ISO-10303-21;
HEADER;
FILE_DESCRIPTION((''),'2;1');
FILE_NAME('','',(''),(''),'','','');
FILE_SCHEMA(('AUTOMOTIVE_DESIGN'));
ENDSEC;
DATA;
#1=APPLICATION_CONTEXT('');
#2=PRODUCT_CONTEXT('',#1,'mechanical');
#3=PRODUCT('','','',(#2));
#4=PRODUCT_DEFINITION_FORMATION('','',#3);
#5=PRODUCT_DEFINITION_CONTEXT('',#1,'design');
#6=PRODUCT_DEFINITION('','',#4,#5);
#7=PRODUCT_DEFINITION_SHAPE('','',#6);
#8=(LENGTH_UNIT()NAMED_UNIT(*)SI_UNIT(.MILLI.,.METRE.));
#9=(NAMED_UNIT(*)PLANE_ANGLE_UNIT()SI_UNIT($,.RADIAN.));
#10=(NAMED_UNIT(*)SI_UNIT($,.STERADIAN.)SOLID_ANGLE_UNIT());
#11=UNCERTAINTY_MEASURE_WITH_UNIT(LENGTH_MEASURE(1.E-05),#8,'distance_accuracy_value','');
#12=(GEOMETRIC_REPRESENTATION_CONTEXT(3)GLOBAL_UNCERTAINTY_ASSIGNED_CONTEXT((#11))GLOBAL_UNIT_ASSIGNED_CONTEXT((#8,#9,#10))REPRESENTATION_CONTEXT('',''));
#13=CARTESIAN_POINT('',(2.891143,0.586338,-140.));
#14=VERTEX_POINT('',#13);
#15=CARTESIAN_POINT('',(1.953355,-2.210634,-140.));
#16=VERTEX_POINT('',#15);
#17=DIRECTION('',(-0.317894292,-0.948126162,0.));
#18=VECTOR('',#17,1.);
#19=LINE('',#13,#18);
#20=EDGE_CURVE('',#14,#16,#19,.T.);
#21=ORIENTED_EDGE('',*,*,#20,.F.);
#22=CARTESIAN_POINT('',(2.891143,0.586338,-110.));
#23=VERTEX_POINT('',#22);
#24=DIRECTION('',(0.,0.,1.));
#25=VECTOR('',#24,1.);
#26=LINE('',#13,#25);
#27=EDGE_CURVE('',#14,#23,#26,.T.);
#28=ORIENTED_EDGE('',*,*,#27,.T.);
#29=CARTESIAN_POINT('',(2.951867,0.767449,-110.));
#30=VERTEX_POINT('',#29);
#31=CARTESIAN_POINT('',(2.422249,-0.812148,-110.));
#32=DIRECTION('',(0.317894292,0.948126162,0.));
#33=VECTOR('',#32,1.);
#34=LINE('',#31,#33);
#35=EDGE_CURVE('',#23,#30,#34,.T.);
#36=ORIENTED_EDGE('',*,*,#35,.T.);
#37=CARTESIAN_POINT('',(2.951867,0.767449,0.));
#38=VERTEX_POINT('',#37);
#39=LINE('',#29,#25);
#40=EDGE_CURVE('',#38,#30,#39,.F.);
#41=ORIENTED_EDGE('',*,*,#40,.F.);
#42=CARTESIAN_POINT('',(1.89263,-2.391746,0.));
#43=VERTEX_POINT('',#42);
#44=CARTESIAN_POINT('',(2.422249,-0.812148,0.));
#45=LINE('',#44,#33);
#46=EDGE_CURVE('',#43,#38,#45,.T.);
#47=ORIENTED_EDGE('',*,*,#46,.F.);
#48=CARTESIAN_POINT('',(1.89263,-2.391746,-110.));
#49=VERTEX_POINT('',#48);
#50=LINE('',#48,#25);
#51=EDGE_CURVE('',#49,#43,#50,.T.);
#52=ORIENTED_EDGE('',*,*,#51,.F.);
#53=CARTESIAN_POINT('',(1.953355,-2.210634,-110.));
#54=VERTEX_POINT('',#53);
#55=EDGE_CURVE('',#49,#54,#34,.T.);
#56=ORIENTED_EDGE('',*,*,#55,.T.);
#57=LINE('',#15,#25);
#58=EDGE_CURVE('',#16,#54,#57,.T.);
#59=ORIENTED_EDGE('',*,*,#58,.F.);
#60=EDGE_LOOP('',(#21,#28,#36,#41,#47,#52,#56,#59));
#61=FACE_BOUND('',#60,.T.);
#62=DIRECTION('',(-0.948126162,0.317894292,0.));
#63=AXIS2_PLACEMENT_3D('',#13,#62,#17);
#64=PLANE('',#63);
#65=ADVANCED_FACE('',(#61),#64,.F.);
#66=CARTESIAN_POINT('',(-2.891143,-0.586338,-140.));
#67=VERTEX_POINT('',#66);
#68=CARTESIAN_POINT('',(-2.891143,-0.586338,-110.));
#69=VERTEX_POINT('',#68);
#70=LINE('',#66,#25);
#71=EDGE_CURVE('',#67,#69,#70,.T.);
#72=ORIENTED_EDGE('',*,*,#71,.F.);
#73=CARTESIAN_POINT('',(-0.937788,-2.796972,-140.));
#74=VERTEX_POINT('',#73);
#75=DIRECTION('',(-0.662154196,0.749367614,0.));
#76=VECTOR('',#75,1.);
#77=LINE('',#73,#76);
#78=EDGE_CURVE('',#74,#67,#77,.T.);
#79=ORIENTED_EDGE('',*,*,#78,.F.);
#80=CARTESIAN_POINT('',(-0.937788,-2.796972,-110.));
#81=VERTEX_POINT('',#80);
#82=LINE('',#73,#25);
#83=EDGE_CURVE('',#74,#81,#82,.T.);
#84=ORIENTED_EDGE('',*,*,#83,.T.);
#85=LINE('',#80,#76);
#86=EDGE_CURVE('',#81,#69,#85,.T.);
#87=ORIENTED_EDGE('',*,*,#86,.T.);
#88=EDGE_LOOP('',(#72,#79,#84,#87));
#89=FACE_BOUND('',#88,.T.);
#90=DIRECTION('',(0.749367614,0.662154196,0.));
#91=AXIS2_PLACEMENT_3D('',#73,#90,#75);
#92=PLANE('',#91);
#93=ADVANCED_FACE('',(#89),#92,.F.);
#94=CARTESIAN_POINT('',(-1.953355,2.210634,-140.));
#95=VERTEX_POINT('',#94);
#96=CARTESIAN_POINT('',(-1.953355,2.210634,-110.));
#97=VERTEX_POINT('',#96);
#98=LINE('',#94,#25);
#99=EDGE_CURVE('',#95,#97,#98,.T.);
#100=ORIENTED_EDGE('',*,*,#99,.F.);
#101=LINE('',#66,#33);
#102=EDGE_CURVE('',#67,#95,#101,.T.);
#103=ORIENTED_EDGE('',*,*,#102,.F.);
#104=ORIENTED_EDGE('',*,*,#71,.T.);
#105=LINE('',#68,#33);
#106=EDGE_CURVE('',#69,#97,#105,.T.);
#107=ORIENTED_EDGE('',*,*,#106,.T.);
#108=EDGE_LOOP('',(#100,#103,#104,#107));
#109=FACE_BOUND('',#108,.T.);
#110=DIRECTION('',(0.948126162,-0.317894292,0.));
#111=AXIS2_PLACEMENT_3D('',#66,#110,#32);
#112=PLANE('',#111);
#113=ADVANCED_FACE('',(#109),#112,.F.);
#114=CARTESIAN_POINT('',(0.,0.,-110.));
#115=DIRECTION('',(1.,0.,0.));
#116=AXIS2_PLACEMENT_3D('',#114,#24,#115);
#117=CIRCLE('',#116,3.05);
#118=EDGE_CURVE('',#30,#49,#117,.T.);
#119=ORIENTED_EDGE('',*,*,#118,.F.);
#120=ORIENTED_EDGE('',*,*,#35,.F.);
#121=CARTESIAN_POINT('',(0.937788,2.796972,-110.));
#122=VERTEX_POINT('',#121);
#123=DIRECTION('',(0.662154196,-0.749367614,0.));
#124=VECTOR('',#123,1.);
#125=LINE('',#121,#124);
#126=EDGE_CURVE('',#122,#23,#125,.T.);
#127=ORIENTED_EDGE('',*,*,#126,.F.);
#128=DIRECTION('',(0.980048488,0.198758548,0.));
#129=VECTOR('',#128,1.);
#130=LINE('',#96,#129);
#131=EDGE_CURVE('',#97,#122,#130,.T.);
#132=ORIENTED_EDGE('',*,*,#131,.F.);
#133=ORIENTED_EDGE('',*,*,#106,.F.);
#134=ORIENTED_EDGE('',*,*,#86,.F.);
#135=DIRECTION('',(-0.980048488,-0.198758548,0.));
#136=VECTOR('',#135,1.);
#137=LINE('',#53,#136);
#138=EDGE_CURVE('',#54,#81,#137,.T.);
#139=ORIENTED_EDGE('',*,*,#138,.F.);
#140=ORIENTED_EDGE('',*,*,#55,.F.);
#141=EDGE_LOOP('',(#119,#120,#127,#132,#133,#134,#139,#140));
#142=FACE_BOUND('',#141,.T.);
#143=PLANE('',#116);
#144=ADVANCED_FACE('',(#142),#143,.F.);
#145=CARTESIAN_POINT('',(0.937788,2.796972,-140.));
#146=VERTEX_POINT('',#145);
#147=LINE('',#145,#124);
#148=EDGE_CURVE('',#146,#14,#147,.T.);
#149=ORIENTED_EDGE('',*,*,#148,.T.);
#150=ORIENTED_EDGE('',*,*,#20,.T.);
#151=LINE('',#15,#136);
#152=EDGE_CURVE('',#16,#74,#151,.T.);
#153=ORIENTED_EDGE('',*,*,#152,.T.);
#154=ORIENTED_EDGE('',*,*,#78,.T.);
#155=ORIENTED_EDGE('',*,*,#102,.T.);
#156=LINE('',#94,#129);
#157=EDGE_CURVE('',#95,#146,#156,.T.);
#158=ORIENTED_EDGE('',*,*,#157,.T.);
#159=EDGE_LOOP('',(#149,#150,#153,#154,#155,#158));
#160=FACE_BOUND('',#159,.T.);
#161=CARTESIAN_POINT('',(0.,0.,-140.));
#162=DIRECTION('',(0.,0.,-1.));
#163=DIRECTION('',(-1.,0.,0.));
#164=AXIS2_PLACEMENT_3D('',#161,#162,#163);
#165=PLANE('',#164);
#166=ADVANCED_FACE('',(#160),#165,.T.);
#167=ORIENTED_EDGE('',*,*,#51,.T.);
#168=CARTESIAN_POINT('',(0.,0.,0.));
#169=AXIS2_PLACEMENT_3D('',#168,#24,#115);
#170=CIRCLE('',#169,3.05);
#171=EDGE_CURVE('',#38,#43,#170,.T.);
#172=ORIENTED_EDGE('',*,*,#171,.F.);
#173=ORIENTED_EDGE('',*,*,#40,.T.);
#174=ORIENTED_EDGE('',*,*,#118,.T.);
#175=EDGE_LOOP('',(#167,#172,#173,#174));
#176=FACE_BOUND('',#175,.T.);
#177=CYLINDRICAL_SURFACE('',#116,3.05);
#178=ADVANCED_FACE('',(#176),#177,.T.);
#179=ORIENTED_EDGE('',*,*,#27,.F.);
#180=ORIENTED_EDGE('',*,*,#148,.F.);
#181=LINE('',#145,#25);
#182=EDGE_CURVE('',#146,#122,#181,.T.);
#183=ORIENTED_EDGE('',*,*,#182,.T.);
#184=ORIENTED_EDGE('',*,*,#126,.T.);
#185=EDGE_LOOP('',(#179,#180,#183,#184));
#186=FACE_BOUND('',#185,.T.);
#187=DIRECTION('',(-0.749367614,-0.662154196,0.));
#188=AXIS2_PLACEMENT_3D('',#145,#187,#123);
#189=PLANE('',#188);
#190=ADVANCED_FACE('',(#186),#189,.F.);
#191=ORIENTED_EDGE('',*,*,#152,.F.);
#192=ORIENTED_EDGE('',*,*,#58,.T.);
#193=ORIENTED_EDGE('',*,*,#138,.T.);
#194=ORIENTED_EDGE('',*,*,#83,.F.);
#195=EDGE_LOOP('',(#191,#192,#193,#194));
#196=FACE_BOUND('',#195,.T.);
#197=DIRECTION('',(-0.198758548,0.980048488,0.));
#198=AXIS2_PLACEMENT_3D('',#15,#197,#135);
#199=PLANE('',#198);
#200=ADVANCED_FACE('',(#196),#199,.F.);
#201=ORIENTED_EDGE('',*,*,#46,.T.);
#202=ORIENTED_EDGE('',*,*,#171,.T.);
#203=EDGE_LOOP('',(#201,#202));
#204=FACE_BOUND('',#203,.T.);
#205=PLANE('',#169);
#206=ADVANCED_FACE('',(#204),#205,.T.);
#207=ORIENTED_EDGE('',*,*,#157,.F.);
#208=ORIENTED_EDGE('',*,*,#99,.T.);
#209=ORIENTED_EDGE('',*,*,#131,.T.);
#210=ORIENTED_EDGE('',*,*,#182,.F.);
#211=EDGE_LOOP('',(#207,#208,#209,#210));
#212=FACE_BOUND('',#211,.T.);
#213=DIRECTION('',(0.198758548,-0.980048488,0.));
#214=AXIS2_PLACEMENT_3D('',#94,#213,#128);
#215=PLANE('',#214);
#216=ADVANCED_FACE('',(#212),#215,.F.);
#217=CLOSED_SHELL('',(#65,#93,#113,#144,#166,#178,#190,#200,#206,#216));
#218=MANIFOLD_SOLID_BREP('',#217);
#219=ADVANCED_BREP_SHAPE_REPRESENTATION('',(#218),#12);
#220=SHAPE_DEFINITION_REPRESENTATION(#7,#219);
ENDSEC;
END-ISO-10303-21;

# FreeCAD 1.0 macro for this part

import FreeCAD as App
import Part
import Sketcher

V = App.Vector


def add_polygon(sketch, points):
    """Adds a closed chain of lines whose ends are joined by coincident constraints."""
    first, n = sketch.GeometryCount, len(points)
    for a, b in zip(points, points[1:] + points[:1]):
        sketch.addGeometry(Part.LineSegment(App.Vector(*a, 0), App.Vector(*b, 0)), False)
    for i in range(n):
        sketch.addConstraint(Sketcher.Constraint("Coincident", first + i, 2, first + (i + 1) % n, 1))

doc = App.newDocument("Part")
body = doc.addObject("PartDesign::Body", "Body")

# Sketch on XY plane
sketch1 = body.newObject("Sketcher::SketchObject", "Sketch")
sketch1.AttachmentSupport = (doc.getObject("XY_Plane"), [""])
sketch1.MapMode = "FlatFace"
sketch1.addGeometry(Part.Circle(V(0, 0, 0), V(0, 0, 1), 3.05), False)
sketch1.addConstraint([
    Sketcher.Constraint("Coincident", 0, 3, -1, 1),
    Sketcher.Constraint("Diameter", 0, 6.1),
])
pad1 = body.newObject("PartDesign::Pad", "Pad")
pad1.Profile = sketch1
pad1.Length = 110
pad1.Reversed = True

# Sketch on XY plane
sketch2 = body.newObject("Sketcher::SketchObject", "Sketch001")
sketch2.AttachmentSupport = (doc.getObject("XY_Plane"), [""])
sketch2.MapMode = "FlatFace"
sketch2.AttachmentOffset = App.Placement(V(0, 0, -110), App.Rotation())
add_polygon(sketch2, [(-1.953355, 2.210634), (0.937788, 2.796972), (2.891143, 0.586338), (1.953355, -2.210634), (-0.937788, -2.796972), (-2.891143, -0.586338)])  # lines 0-5
sketch2.addConstraint([
    Sketcher.Constraint("Symmetric", 0, 2, 3, 2, -1, 1),
    Sketcher.Constraint("Symmetric", 1, 2, 4, 2, -1, 1),
    Sketcher.Constraint("Symmetric", 2, 2, 5, 2, -1, 1),
    Sketcher.Constraint("Equal", 0, 1),
    Sketcher.Constraint("Equal", 1, 2),
    Sketcher.Constraint("Distance", 0, 2.95),
    Sketcher.Constraint("DistanceX", -1, 1, 0, 2, 0.937788),
    Sketcher.Constraint("DistanceX", 2, 2, 1, 2, 0.937788),
    Sketcher.Constraint("DistanceX", 3, 2, 1, 2, 3.828931),
])
pad2 = body.newObject("PartDesign::Pad", "Pad001")
pad2.Profile = sketch2
pad2.Length = 30
pad2.Reversed = True

# Sketch on an angled plane
sketch3 = body.newObject("Sketcher::SketchObject", "Sketch002")
sketch3.Placement = App.Placement(V(2.422249, -0.812148, 0), App.Rotation(V(0, 0, -1), V(0.317894292, 0.948126162, 0), V(0.948126162, -0.317894292, 0), "ZXY"))
add_polygon(sketch3, [(-5.582957, 10.484719), (-5.582957, -11.506932), (142.878482, -11.506932), (142.878482, 10.484719)])  # lines 0-3
sketch3.addConstraint([
    Sketcher.Constraint("Vertical", 0),
    Sketcher.Constraint("Horizontal", 1),
    Sketcher.Constraint("Vertical", 2),
    Sketcher.Constraint("Horizontal", 3),
    Sketcher.Constraint("DistanceX", 1, 1, 1, 2, 148.46144),
    Sketcher.Constraint("DistanceY", 0, 2, 0, 1, 21.991651),
    Sketcher.Constraint("DistanceY", -1, 1, 2, 2, 10.484719),
    Sketcher.Constraint("DistanceX", 0, 2, -1, 1, 5.582957),
])
pocket1 = body.newObject("PartDesign::Pocket", "Pocket")
pocket1.Profile = sketch3
pocket1.Type = "ThroughAll"
pocket1.Reversed = True

doc.recompute()
